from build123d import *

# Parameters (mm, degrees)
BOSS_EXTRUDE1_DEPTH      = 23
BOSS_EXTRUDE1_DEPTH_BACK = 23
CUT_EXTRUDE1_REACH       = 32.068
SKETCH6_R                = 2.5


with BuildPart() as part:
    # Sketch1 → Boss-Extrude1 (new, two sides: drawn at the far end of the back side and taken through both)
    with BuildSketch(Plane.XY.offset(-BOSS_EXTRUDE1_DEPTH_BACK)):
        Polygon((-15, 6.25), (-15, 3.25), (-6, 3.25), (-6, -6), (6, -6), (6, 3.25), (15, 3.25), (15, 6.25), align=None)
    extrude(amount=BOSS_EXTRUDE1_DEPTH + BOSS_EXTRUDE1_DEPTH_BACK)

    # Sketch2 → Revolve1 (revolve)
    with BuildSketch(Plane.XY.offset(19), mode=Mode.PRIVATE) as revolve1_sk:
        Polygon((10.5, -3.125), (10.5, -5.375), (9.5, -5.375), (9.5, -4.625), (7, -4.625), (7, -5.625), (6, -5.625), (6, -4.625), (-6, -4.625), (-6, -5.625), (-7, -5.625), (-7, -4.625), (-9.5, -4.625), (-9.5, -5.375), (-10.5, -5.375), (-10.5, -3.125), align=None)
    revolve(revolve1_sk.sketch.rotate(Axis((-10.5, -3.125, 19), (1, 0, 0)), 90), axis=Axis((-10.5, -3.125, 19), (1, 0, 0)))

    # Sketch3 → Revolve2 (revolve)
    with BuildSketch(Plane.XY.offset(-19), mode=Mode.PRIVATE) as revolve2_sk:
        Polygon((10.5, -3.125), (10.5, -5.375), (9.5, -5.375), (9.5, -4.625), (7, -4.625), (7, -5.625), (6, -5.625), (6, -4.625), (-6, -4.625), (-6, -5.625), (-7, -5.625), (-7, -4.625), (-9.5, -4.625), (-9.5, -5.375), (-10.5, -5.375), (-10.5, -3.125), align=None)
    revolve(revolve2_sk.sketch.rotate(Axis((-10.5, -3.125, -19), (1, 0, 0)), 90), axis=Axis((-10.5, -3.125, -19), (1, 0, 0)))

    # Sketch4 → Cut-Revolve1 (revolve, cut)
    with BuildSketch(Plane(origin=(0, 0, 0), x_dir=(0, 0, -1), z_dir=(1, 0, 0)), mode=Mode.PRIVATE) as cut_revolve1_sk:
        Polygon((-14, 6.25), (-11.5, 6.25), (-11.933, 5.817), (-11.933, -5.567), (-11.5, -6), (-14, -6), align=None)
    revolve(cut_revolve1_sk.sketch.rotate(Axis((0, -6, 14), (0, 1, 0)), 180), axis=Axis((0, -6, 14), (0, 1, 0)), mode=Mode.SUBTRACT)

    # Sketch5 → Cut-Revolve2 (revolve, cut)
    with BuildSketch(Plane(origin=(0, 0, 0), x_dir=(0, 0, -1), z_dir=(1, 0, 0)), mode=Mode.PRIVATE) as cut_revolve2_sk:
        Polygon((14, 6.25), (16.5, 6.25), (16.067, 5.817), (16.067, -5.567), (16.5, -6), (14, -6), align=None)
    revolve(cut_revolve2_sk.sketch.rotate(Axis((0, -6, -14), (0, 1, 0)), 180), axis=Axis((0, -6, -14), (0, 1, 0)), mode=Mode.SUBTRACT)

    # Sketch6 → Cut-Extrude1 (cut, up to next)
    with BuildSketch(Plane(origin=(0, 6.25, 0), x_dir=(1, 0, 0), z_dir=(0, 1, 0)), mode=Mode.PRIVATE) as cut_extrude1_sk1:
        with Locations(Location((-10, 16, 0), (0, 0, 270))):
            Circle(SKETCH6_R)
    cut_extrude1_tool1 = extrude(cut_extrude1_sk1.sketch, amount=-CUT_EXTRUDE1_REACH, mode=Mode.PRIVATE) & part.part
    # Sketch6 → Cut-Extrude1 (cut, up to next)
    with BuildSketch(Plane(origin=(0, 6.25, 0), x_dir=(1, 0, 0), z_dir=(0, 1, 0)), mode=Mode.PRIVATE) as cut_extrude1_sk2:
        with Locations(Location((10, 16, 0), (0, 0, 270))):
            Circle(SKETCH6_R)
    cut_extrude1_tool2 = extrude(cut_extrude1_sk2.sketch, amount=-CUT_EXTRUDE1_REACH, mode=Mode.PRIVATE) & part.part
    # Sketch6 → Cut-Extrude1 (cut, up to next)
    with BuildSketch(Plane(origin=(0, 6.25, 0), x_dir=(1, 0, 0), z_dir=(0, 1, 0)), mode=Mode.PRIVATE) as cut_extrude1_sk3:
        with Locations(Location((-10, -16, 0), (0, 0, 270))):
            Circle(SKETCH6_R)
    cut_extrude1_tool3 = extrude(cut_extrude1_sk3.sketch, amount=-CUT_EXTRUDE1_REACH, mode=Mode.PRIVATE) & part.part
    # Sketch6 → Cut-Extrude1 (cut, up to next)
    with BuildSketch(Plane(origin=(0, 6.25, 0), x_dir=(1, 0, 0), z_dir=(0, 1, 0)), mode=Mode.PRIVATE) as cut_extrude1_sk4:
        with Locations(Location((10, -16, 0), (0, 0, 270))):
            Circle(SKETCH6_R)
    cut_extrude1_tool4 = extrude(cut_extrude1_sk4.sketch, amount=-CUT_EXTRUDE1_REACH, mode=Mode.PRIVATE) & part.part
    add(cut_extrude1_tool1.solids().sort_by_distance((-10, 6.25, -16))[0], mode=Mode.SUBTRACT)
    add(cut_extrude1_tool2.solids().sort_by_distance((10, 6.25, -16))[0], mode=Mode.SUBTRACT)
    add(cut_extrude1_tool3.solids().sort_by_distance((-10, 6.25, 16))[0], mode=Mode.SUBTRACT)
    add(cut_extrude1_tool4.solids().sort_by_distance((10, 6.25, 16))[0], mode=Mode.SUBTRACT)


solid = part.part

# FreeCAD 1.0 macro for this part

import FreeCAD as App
import Part
import Sketcher
Q = App.Units.Quantity


def add_polygon(sketch, points):
    """Adds a closed chain of lines whose ends are joined by coincident constraints."""
    first, n = sketch.GeometryCount, len(points)
    for a, b in zip(points, points[1:] + points[:1]):
        sketch.addGeometry(Part.LineSegment(App.Vector(*a, 0), App.Vector(*b, 0)), False)
    for i in range(n):
        sketch.addConstraint(Sketcher.Constraint("Coincident", first + i, 2, first + (i + 1) % n, 1))

doc = App.newDocument("Part")
params = doc.addObject("Spreadsheet::Sheet", "Params")
for row, (alias, value) in enumerate([
    ("sketch1_width", "9 mm"),
    ("sketch1_width2", "12 mm"),
    ("sketch1_height", "3 mm"),
    ("sketch1_height2", "9.25 mm"),
    ("pad1_length", "23 mm"),
    ("pad1_length2", "23 mm"),
    ("sketch2_width", "21 mm"),
    ("sketch2_width2", "1 mm"),
    ("sketch2_width3", "12 mm"),
    ("sketch2_height", "2.25 mm"),
    ("sketch2_height2", "0.75 mm"),
    ("revolution_angle", "360 deg"),
    ("sketch3_width", "21 mm"),
    ("sketch3_width2", "1 mm"),
    ("sketch3_width3", "12 mm"),
    ("sketch3_height", "2.25 mm"),
    ("sketch3_height2", "0.75 mm"),
    ("revolution2_angle", "360 deg"),
    ("sketch4_height", "2.5 mm"),
    ("sketch4_width", "12.25 mm"),
    ("groove_angle", "360 deg"),
    ("sketch5_height", "2.5 mm"),
    ("sketch5_width", "12.25 mm"),
    ("groove2_angle", "360 deg"),
    ("sketch6_diameter", "5 mm"),
    ("sketch7_diameter", "5 mm"),
    ("sketch8_diameter", "5 mm"),
    ("sketch9_diameter", "5 mm"),
], start=1):
    params.set(f"A{row}", alias)
    params.set(f"B{row}", "=" + value)
    params.setAlias(f"B{row}", alias)

body = doc.addObject("PartDesign::Body", "Body")

sketch1 = doc.addObject("Sketcher::SketchObject", "Sketch")
body.addObject(sketch1)
sketch1.AttachmentSupport = (doc.XY_Plane, [""])
sketch1.MapMode = "FlatFace"
add_polygon(sketch1, [(-15, 6.25), (-15, 3.25), (-6, 3.25), (-6, -6), (6, -6), (6, 3.25), (15, 3.25), (15, 6.25)])
sketch1.addConstraint([
    Sketcher.Constraint("Vertical", 0),
    Sketcher.Constraint("Horizontal", 1),
    Sketcher.Constraint("Vertical", 2),
    Sketcher.Constraint("Horizontal", 3),
    Sketcher.Constraint("Vertical", 4),
    Sketcher.Constraint("Horizontal", 5),
    Sketcher.Constraint("Vertical", 6),
    Sketcher.Constraint("Horizontal", 7),
    Sketcher.Constraint("Symmetric", 1, 2, 4, 2, -2),
    Sketcher.Constraint("Equal", 1, 5),
    Sketcher.Constraint("DistanceX", 1, 1, 1, 2, Q("9 mm")),
    Sketcher.Constraint("DistanceX", 3, 1, 3, 2, Q("12 mm")),
    Sketcher.Constraint("DistanceY", 0, 2, 0, 1, Q("3 mm")),
    Sketcher.Constraint("DistanceY", 2, 2, -1, 1, Q("6 mm")),
    Sketcher.Constraint("DistanceY", 2, 2, 2, 1, Q("9.25 mm")),
])
sketch1.setExpression("Constraints[18]", "Params.sketch1_width")
sketch1.setExpression("Constraints[19]", "Params.sketch1_width2")
sketch1.setExpression("Constraints[20]", "Params.sketch1_height")
sketch1.setExpression("Constraints[22]", "Params.sketch1_height2")
pad1 = doc.addObject("PartDesign::Pad", "Pad")
body.addObject(pad1)
pad1.Profile = sketch1
pad1.Type = "TwoLengths"
pad1.setExpression("Length", "Params.pad1_length")
pad1.setExpression("Length2", "Params.pad1_length2")

sketch2 = doc.addObject("Sketcher::SketchObject", "Sketch001")
body.addObject(sketch2)
sketch2.AttachmentSupport = (doc.XY_Plane, [""])
sketch2.MapMode = "FlatFace"
sketch2.AttachmentOffset = App.Placement(App.Vector(0, 0, 19), App.Rotation())
add_polygon(sketch2, [(10.5, -5.375), (10.5, -3.125), (-10.5, -3.125), (-10.5, -5.375), (-9.5, -5.375), (-9.5, -4.625), (-7, -4.625), (-7, -5.625), (-6, -5.625), (-6, -4.625), (6, -4.625), (6, -5.625), (7, -5.625), (7, -4.625), (9.5, -4.625), (9.5, -5.375)])
sketch2.addGeometry(Part.LineSegment(App.Vector(-10.5, -3.125, 0), App.Vector(10.5, -3.125, 0)), True)
sketch2.addConstraint([
    Sketcher.Constraint("Vertical", 0),
    Sketcher.Constraint("Horizontal", 1),
    Sketcher.Constraint("Vertical", 2),
    Sketcher.Constraint("Horizontal", 3),
    Sketcher.Constraint("Vertical", 4),
    Sketcher.Constraint("Horizontal", 5),
    Sketcher.Constraint("Vertical", 6),
    Sketcher.Constraint("Horizontal", 7),
    Sketcher.Constraint("Vertical", 8),
    Sketcher.Constraint("Horizontal", 9),
    Sketcher.Constraint("Vertical", 10),
    Sketcher.Constraint("Horizontal", 11),
    Sketcher.Constraint("Vertical", 12),
    Sketcher.Constraint("Horizontal", 13),
    Sketcher.Constraint("Vertical", 14),
    Sketcher.Constraint("Horizontal", 15),
    Sketcher.Constraint("Horizontal", 16),
    Sketcher.Constraint("Coincident", 16, 1, 1, 2),
    Sketcher.Constraint("Symmetric", 7, 2, 10, 2, -2),
    Sketcher.Constraint("Symmetric", 5, 2, 12, 2, -2),
    Sketcher.Constraint("Symmetric", 3, 2, 14, 2, -2),
    Sketcher.Constraint("Horizontal", 5, 2, 8, 2),
    Sketcher.Constraint("Vertical", 15, 2, 16, 2),
    Sketcher.Constraint("Equal", 3, 7),
    Sketcher.Constraint("Equal", 11, 15),
    Sketcher.Constraint("Equal", 15, 6),
    Sketcher.Constraint("DistanceX", 1, 2, 1, 1, Q("21 mm")),
    Sketcher.Constraint("DistanceX", 3, 1, 3, 2, Q("1 mm")),
    Sketcher.Constraint("DistanceX", 9, 1, 9, 2, Q("12 mm")),
    Sketcher.Constraint("DistanceY", 0, 1, 0, 2, Q("2.25 mm")),
    Sketcher.Constraint("DistanceY", 4, 1, 4, 2, Q("0.75 mm")),
    Sketcher.Constraint("DistanceY", 0, 2, -1, 1, Q("3.125 mm")),
])
sketch2.setExpression("Constraints[42]", "Params.sketch2_width")
sketch2.setExpression("Constraints[43]", "Params.sketch2_width2")
sketch2.setExpression("Constraints[44]", "Params.sketch2_width3")
sketch2.setExpression("Constraints[45]", "Params.sketch2_height")
sketch2.setExpression("Constraints[46]", "Params.sketch2_height2")
revolution = doc.addObject("PartDesign::Revolution", "Revolution")
body.addObject(revolution)
revolution.Profile = sketch2
revolution.ReferenceAxis = (sketch2, ["Axis0"])
revolution.setExpression("Angle", "Params.revolution_angle")

sketch3 = doc.addObject("Sketcher::SketchObject", "Sketch002")
body.addObject(sketch3)
sketch3.AttachmentSupport = (doc.XY_Plane, [""])
sketch3.MapMode = "FlatFace"
sketch3.AttachmentOffset = App.Placement(App.Vector(0, 0, -19), App.Rotation())
add_polygon(sketch3, [(10.5, -5.375), (10.5, -3.125), (-10.5, -3.125), (-10.5, -5.375), (-9.5, -5.375), (-9.5, -4.625), (-7, -4.625), (-7, -5.625), (-6, -5.625), (-6, -4.625), (6, -4.625), (6, -5.625), (7, -5.625), (7, -4.625), (9.5, -4.625), (9.5, -5.375)])
sketch3.addGeometry(Part.LineSegment(App.Vector(-10.5, -3.125, 0), App.Vector(10.5, -3.125, 0)), True)
sketch3.addConstraint([
    Sketcher.Constraint("Vertical", 0),
    Sketcher.Constraint("Horizontal", 1),
    Sketcher.Constraint("Vertical", 2),
    Sketcher.Constraint("Horizontal", 3),
    Sketcher.Constraint("Vertical", 4),
    Sketcher.Constraint("Horizontal", 5),
    Sketcher.Constraint("Vertical", 6),
    Sketcher.Constraint("Horizontal", 7),
    Sketcher.Constraint("Vertical", 8),
    Sketcher.Constraint("Horizontal", 9),
    Sketcher.Constraint("Vertical", 10),
    Sketcher.Constraint("Horizontal", 11),
    Sketcher.Constraint("Vertical", 12),
    Sketcher.Constraint("Horizontal", 13),
    Sketcher.Constraint("Vertical", 14),
    Sketcher.Constraint("Horizontal", 15),
    Sketcher.Constraint("Horizontal", 16),
    Sketcher.Constraint("Coincident", 16, 1, 1, 2),
    Sketcher.Constraint("Symmetric", 7, 2, 10, 2, -2),
    Sketcher.Constraint("Symmetric", 5, 2, 12, 2, -2),
    Sketcher.Constraint("Symmetric", 3, 2, 14, 2, -2),
    Sketcher.Constraint("Horizontal", 5, 2, 8, 2),
    Sketcher.Constraint("Vertical", 15, 2, 16, 2),
    Sketcher.Constraint("Equal", 3, 7),
    Sketcher.Constraint("Equal", 11, 15),
    Sketcher.Constraint("Equal", 15, 6),
    Sketcher.Constraint("DistanceX", 1, 2, 1, 1, Q("21 mm")),
    Sketcher.Constraint("DistanceX", 3, 1, 3, 2, Q("1 mm")),
    Sketcher.Constraint("DistanceX", 9, 1, 9, 2, Q("12 mm")),
    Sketcher.Constraint("DistanceY", 0, 1, 0, 2, Q("2.25 mm")),
    Sketcher.Constraint("DistanceY", 4, 1, 4, 2, Q("0.75 mm")),
    Sketcher.Constraint("DistanceY", 0, 2, -1, 1, Q("3.125 mm")),
])
sketch3.setExpression("Constraints[42]", "Params.sketch3_width")
sketch3.setExpression("Constraints[43]", "Params.sketch3_width2")
sketch3.setExpression("Constraints[44]", "Params.sketch3_width3")
sketch3.setExpression("Constraints[45]", "Params.sketch3_height")
sketch3.setExpression("Constraints[46]", "Params.sketch3_height2")
revolution2 = doc.addObject("PartDesign::Revolution", "Revolution001")
body.addObject(revolution2)
revolution2.Profile = sketch3
revolution2.ReferenceAxis = (sketch3, ["Axis0"])
revolution2.setExpression("Angle", "Params.revolution2_angle")

sketch4 = doc.addObject("Sketcher::SketchObject", "Sketch003")
body.addObject(sketch4)
sketch4.AttachmentSupport = (doc.YZ_Plane, [""])
sketch4.MapMode = "FlatFace"
add_polygon(sketch4, [(6.25, 11.5), (6.25, 14), (-6, 14), (-6, 11.5), (-5.567, 11.933), (5.817, 11.933)])
sketch4.addGeometry(Part.LineSegment(App.Vector(-6, 14, 0), App.Vector(6.25, 14, 0)), True)
sketch4.addConstraint([
    Sketcher.Constraint("Vertical", 0),
    Sketcher.Constraint("Horizontal", 1),
    Sketcher.Constraint("Vertical", 2),
    Sketcher.Constraint("Horizontal", 4),
    Sketcher.Constraint("Horizontal", 6),
    Sketcher.Constraint("Coincident", 6, 1, 1, 2),
    Sketcher.Constraint("Perpendicular", 3, 5),
    Sketcher.Constraint("Horizontal", 2, 2, 5, 2),
    Sketcher.Constraint("Vertical", 5, 2, 6, 2),
    Sketcher.Constraint("Equal", 3, 5),
    Sketcher.Constraint("DistanceY", 0, 1, 0, 2, Q("2.5 mm")),
    Sketcher.Constraint("DistanceY", -1, 1, 0, 2, Q("14 mm")),
    Sketcher.Constraint("DistanceX", 1, 2, -1, 1, Q("6 mm")),
    Sketcher.Constraint("DistanceX", 1, 2, 1, 1, Q("12.25 mm")),
    Sketcher.Constraint("DistanceX", 4, 1, 4, 2, Q("11.384 mm")),
])
sketch4.setExpression("Constraints[16]", "Params.sketch4_height")
sketch4.setExpression("Constraints[19]", "Params.sketch4_width")
groove = doc.addObject("PartDesign::Groove", "Groove")
body.addObject(groove)
groove.Profile = sketch4
groove.ReferenceAxis = (sketch4, ["Axis0"])
groove.setExpression("Angle", "Params.groove_angle")

sketch5 = doc.addObject("Sketcher::SketchObject", "Sketch004")
body.addObject(sketch5)
sketch5.AttachmentSupport = (doc.YZ_Plane, [""])
sketch5.MapMode = "FlatFace"
add_polygon(sketch5, [(6.25, -16.5), (6.25, -14), (-6, -14), (-6, -16.5), (-5.567, -16.067), (5.817, -16.067)])
sketch5.addGeometry(Part.LineSegment(App.Vector(-6, -14, 0), App.Vector(6.25, -14, 0)), True)
sketch5.addConstraint([
    Sketcher.Constraint("Vertical", 0),
    Sketcher.Constraint("Horizontal", 1),
    Sketcher.Constraint("Vertical", 2),
    Sketcher.Constraint("Horizontal", 4),
    Sketcher.Constraint("Horizontal", 6),
    Sketcher.Constraint("Coincident", 6, 1, 1, 2),
    Sketcher.Constraint("Perpendicular", 3, 5),
    Sketcher.Constraint("Horizontal", 2, 2, 5, 2),
    Sketcher.Constraint("Vertical", 5, 2, 6, 2),
    Sketcher.Constraint("Equal", 3, 5),
    Sketcher.Constraint("DistanceY", 0, 1, 0, 2, Q("2.5 mm")),
    Sketcher.Constraint("DistanceY", 0, 2, -1, 1, Q("14 mm")),
    Sketcher.Constraint("DistanceX", 1, 2, -1, 1, Q("6 mm")),
    Sketcher.Constraint("DistanceX", 1, 2, 1, 1, Q("12.25 mm")),
    Sketcher.Constraint("DistanceX", 4, 1, 4, 2, Q("11.384 mm")),
])
sketch5.setExpression("Constraints[16]", "Params.sketch5_height")
sketch5.setExpression("Constraints[19]", "Params.sketch5_width")
groove2 = doc.addObject("PartDesign::Groove", "Groove001")
body.addObject(groove2)
groove2.Profile = sketch5
groove2.ReferenceAxis = (sketch5, ["Axis0"])
groove2.setExpression("Angle", "Params.groove2_angle")

sketch6 = doc.addObject("Sketcher::SketchObject", "Sketch005")
body.addObject(sketch6)
sketch6.AttachmentSupport = (doc.XZ_Plane, [""])
sketch6.MapMode = "FlatFace"
sketch6.AttachmentOffset = App.Placement(App.Vector(0, 0, -6.25), App.Rotation())
sketch6.addGeometry(Part.Circle(App.Vector(-10, -16, 0), App.Vector(0, 0, 1), 2.5), False)
sketch6.addConstraint([
    Sketcher.Constraint("Diameter", 0, Q("5 mm")),
    Sketcher.Constraint("DistanceX", 0, 3, -1, 1, Q("10 mm")),
    Sketcher.Constraint("DistanceY", 0, 3, -1, 1, Q("16 mm")),
])
sketch6.setExpression("Constraints[0]", "Params.sketch6_diameter")
pocket1 = doc.addObject("PartDesign::Pocket", "Pocket")
body.addObject(pocket1)
pocket1.Profile = sketch6
pocket1.Type = "UpToFirst"
pocket1.Reversed = True

sketch7 = doc.addObject("Sketcher::SketchObject", "Sketch006")
body.addObject(sketch7)
sketch7.AttachmentSupport = (doc.XZ_Plane, [""])
sketch7.MapMode = "FlatFace"
sketch7.AttachmentOffset = App.Placement(App.Vector(0, 0, -6.25), App.Rotation())
sketch7.addGeometry(Part.Circle(App.Vector(10, -16, 0), App.Vector(0, 0, 1), 2.5), False)
sketch7.addConstraint([
    Sketcher.Constraint("Diameter", 0, Q("5 mm")),
    Sketcher.Constraint("DistanceX", -1, 1, 0, 3, Q("10 mm")),
    Sketcher.Constraint("DistanceY", 0, 3, -1, 1, Q("16 mm")),
])
sketch7.setExpression("Constraints[0]", "Params.sketch7_diameter")
pocket2 = doc.addObject("PartDesign::Pocket", "Pocket001")
body.addObject(pocket2)
pocket2.Profile = sketch7
pocket2.Type = "UpToFirst"
pocket2.Reversed = True

sketch8 = doc.addObject("Sketcher::SketchObject", "Sketch007")
body.addObject(sketch8)
sketch8.AttachmentSupport = (doc.XZ_Plane, [""])
sketch8.MapMode = "FlatFace"
sketch8.AttachmentOffset = App.Placement(App.Vector(0, 0, -6.25), App.Rotation())
sketch8.addGeometry(Part.Circle(App.Vector(-10, 16, 0), App.Vector(0, 0, 1), 2.5), False)
sketch8.addConstraint([
    Sketcher.Constraint("Diameter", 0, Q("5 mm")),
    Sketcher.Constraint("DistanceX", 0, 3, -1, 1, Q("10 mm")),
    Sketcher.Constraint("DistanceY", -1, 1, 0, 3, Q("16 mm")),
])
sketch8.setExpression("Constraints[0]", "Params.sketch8_diameter")
pocket3 = doc.addObject("PartDesign::Pocket", "Pocket002")
body.addObject(pocket3)
pocket3.Profile = sketch8
pocket3.Type = "UpToFirst"
pocket3.Reversed = True

sketch9 = doc.addObject("Sketcher::SketchObject", "Sketch008")
body.addObject(sketch9)
sketch9.AttachmentSupport = (doc.XZ_Plane, [""])
sketch9.MapMode = "FlatFace"
sketch9.AttachmentOffset = App.Placement(App.Vector(0, 0, -6.25), App.Rotation())
sketch9.addGeometry(Part.Circle(App.Vector(10, 16, 0), App.Vector(0, 0, 1), 2.5), False)
sketch9.addConstraint([
    Sketcher.Constraint("Diameter", 0, Q("5 mm")),
    Sketcher.Constraint("DistanceX", -1, 1, 0, 3, Q("10 mm")),
    Sketcher.Constraint("DistanceY", -1, 1, 0, 3, Q("16 mm")),
])
sketch9.setExpression("Constraints[0]", "Params.sketch9_diameter")
pocket4 = doc.addObject("PartDesign::Pocket", "Pocket003")
body.addObject(pocket4)
pocket4.Profile = sketch9
pocket4.Type = "UpToFirst"
pocket4.Reversed = True

doc.recompute()
